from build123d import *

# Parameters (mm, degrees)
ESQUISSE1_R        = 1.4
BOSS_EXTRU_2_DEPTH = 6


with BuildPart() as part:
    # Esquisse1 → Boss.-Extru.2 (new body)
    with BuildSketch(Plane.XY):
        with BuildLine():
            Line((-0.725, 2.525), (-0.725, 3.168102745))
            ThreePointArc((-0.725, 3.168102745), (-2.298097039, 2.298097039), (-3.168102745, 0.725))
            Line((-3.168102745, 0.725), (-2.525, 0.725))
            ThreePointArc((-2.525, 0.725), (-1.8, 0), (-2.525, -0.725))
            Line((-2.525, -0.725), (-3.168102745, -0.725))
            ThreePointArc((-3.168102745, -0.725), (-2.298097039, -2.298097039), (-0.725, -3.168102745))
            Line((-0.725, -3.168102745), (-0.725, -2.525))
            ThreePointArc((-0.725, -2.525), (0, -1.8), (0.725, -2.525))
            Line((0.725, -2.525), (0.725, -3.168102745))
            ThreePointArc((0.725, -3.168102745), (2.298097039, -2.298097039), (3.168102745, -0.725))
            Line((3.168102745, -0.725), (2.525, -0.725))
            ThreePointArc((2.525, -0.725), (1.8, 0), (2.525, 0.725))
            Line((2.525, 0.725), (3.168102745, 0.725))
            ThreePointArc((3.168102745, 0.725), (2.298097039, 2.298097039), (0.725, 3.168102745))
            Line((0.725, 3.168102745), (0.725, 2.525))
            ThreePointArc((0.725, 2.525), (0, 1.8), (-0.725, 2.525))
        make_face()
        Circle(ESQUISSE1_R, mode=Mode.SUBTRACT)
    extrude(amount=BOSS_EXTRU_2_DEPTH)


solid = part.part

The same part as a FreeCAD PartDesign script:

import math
import FreeCAD as App
import Part
import Sketcher

V = App.Vector

doc = App.newDocument("Part")
body = doc.addObject("PartDesign::Body", "Body")

# Sketch on XY plane
sketch1 = body.newObject("Sketcher::SketchObject", "Sketch")
sketch1.AttachmentSupport = (doc.getObject("XY_Plane"), [""])
sketch1.MapMode = "FlatFace"
sketch1.addGeometry(Part.LineSegment(V(-0.7, 2.5, 0), V(-0.7, 3.2, 0)), False)
sketch1.addGeometry(Part.ArcOfCircle(Part.Circle(V(0, 0, 0), V(0, 0, 1), 3.3), math.radians(103), math.radians(167)), False)
sketch1.addGeometry(Part.LineSegment(V(-3.2, 0.7, 0), V(-2.5, 0.7, 0)), False)
sketch1.addGeometry(Part.ArcOfCircle(Part.Circle(V(-2.5, 0, 0), V(0, 0, 1), 0.7), math.radians(-90), math.radians(90)), False)
sketch1.addGeometry(Part.LineSegment(V(-2.5, -0.7, 0), V(-3.2, -0.7, 0)), False)
sketch1.addGeometry(Part.ArcOfCircle(Part.Circle(V(0, 0, 0), V(0, 0, 1), 3.3), math.radians(-167), math.radians(-103)), False)
sketch1.addGeometry(Part.LineSegment(V(-0.7, -3.2, 0), V(-0.7, -2.5, 0)), False)
sketch1.addGeometry(Part.ArcOfCircle(Part.Circle(V(0, -2.5, 0), V(0, 0, 1), 0.7), math.radians(0), math.radians(180)), False)
sketch1.addGeometry(Part.LineSegment(V(0.7, -2.5, 0), V(0.7, -3.2, 0)), False)
sketch1.addGeometry(Part.ArcOfCircle(Part.Circle(V(0, 0, 0), V(0, 0, 1), 3.3), math.radians(-77), math.radians(-13)), False)
sketch1.addGeometry(Part.LineSegment(V(3.2, -0.7, 0), V(2.5, -0.7, 0)), False)
sketch1.addGeometry(Part.ArcOfCircle(Part.Circle(V(2.5, 0, 0), V(0, 0, 1), 0.7), math.radians(90), math.radians(270)), False)
sketch1.addGeometry(Part.LineSegment(V(2.5, 0.7, 0), V(3.2, 0.7, 0)), False)
sketch1.addGeometry(Part.ArcOfCircle(Part.Circle(V(0, 0, 0), V(0, 0, 1), 3.3), math.radians(13), math.radians(77)), False)
sketch1.addGeometry(Part.LineSegment(V(0.7, 3.2, 0), V(0.7, 2.5, 0)), False)
sketch1.addGeometry(Part.ArcOfCircle(Part.Circle(V(0, 2.5, 0), V(0, 0, 1), 0.7), math.radians(180), math.radians(360)), False)
sketch1.addGeometry(Part.Circle(V(0, 0, 0), V(0, 0, 1), 1.4), False)
sketch1.addConstraint(Sketcher.Constraint("Coincident", 0, 2, 1, 1))
sketch1.addConstraint(Sketcher.Constraint("Coincident", 1, 2, 2, 1))
sketch1.addConstraint(Sketcher.Constraint("Tangent", 2, 2, 3, 2))
sketch1.addConstraint(Sketcher.Constraint("Tangent", 3, 1, 4, 1))
sketch1.addConstraint(Sketcher.Constraint("Coincident", 4, 2, 5, 1))
sketch1.addConstraint(Sketcher.Constraint("Coincident", 5, 2, 6, 1))
sketch1.addConstraint(Sketcher.Constraint("Tangent", 6, 2, 7, 2))
sketch1.addConstraint(Sketcher.Constraint("Tangent", 7, 1, 8, 1))
sketch1.addConstraint(Sketcher.Constraint("Coincident", 8, 2, 9, 1))
sketch1.addConstraint(Sketcher.Constraint("Coincident", 9, 2, 10, 1))
sketch1.addConstraint(Sketcher.Constraint("Tangent", 10, 2, 11, 2))
sketch1.addConstraint(Sketcher.Constraint("Tangent", 11, 1, 12, 1))
sketch1.addConstraint(Sketcher.Constraint("Coincident", 12, 2, 13, 1))
sketch1.addConstraint(Sketcher.Constraint("Coincident", 13, 2, 14, 1))
sketch1.addConstraint(Sketcher.Constraint("Tangent", 14, 2, 15, 2))
sketch1.addConstraint(Sketcher.Constraint("Tangent", 15, 1, 0, 1))
sketch1.addConstraint(Sketcher.Constraint("Vertical", 0))
sketch1.addConstraint(Sketcher.Constraint("Horizontal", 2))
sketch1.addConstraint(Sketcher.Constraint("Horizontal", 4))
sketch1.addConstraint(Sketcher.Constraint("Vertical", 6))
sketch1.addConstraint(Sketcher.Constraint("Vertical", 8))
sketch1.addConstraint(Sketcher.Constraint("Horizontal", 10))
sketch1.addConstraint(Sketcher.Constraint("Horizontal", 12))
sketch1.addConstraint(Sketcher.Constraint("Vertical", 14))
sketch1.addConstraint(Sketcher.Constraint("Coincident", 1, 3, -1, 1))
sketch1.addConstraint(Sketcher.Constraint("Coincident", 5, 3, -1, 1))
sketch1.addConstraint(Sketcher.Constraint("Coincident", 9, 3, -1, 1))
sketch1.addConstraint(Sketcher.Constraint("Coincident", 13, 3, -1, 1))
sketch1.addConstraint(Sketcher.Constraint("Coincident", 16, 3, -1, 1))
sketch1.addConstraint(Sketcher.Constraint("Equal", 1, 5))
sketch1.addConstraint(Sketcher.Constraint("Equal", 3, 7))
sketch1.addConstraint(Sketcher.Constraint("Equal", 5, 9))
sketch1.addConstraint(Sketcher.Constraint("Equal", 7, 11))
sketch1.addConstraint(Sketcher.Constraint("Equal", 9, 13))
sketch1.addConstraint(Sketcher.Constraint("Equal", 11, 15))
sketch1.addConstraint(Sketcher.Constraint("Symmetric", 3, 3, 11, 3, -1, 1))
sketch1.addConstraint(Sketcher.Constraint("Symmetric", 7, 3, 15, 3, -1, 1))
sketch1.addConstraint(Sketcher.Constraint("PointOnObject", 3, 3, -1))
sketch1.addConstraint(Sketcher.Constraint("PointOnObject", 7, 3, -2))
sketch1.addConstraint(Sketcher.Constraint("Equal", 12, 0))
sketch1.addConstraint(Sketcher.Constraint("Diameter", 16, 2.8))
sketch1.addConstraint(Sketcher.Constraint("Radius", 1, 3.25))
sketch1.addConstraint(Sketcher.Constraint("Radius", 3, 0.725))
sketch1.addConstraint(Sketcher.Constraint("DistanceX", 3, 1, 5, 2, 1.8))
pad1 = body.newObject("PartDesign::Pad", "Pad")
pad1.Profile = sketch1
pad1.Length = 6

doc.recompute()
